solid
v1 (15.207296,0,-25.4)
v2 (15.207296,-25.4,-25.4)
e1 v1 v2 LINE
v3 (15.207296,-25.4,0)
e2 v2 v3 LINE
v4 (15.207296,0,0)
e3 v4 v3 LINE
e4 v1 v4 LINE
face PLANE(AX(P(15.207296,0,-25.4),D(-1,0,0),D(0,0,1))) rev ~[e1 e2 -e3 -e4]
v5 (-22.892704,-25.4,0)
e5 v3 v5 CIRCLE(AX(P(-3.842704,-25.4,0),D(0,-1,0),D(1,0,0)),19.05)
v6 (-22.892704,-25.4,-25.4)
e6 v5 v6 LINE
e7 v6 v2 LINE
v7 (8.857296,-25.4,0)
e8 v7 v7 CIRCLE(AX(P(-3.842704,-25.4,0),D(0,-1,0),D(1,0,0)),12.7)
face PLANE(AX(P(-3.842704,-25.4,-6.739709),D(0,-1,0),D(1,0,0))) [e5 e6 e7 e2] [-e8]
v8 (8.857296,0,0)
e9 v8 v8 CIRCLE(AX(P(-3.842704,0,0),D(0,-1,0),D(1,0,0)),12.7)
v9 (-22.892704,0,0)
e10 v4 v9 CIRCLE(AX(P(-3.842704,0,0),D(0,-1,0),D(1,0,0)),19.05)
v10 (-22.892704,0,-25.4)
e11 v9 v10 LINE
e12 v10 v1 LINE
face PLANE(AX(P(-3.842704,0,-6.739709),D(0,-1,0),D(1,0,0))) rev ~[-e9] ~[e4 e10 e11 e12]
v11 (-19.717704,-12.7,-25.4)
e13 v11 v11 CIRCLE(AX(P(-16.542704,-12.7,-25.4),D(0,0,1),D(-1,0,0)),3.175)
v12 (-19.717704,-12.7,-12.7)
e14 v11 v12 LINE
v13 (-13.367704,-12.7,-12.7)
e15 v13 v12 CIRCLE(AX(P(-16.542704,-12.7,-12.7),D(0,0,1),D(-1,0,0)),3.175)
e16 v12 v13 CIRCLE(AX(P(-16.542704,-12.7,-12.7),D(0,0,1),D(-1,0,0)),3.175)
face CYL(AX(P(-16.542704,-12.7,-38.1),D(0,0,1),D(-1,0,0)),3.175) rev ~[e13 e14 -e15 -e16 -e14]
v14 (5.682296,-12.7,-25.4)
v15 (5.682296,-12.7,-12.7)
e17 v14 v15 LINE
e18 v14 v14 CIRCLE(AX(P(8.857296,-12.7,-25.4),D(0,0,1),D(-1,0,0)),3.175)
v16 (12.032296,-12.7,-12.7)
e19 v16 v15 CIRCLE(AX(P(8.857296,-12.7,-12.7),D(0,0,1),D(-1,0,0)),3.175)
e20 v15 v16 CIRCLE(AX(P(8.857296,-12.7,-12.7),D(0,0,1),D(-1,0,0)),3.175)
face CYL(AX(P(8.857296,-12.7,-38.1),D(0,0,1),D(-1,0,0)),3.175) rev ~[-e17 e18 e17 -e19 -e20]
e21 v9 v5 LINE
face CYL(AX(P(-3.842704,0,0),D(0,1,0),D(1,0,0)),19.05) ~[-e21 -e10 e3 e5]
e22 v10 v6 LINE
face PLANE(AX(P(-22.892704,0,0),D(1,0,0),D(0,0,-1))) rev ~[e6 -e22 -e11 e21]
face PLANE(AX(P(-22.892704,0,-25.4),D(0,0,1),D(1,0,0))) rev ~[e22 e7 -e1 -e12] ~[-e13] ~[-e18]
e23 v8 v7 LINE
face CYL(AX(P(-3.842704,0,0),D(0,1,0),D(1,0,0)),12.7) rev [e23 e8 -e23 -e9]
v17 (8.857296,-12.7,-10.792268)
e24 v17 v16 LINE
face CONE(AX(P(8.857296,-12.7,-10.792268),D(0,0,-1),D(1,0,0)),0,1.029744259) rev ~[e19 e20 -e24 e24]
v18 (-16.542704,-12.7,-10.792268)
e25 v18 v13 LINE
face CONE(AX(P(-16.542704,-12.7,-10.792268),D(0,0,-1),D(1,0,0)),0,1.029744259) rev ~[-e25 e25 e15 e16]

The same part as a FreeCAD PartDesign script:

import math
import FreeCAD as App
import Part
import Sketcher
from FreeCAD import Vector
Q = App.Units.Quantity

doc = App.newDocument("Part")
params = doc.addObject("Spreadsheet::Sheet", "Params")
for row, (alias, value) in enumerate([
    ("sketch1_diameter", "1 in"),
    ("sketch1_height", "1 in"),
    ("sketch1_radius", "0.75 in"),
    ("pad1_length", "1 in"),
    ("sketch2_diameter", "0.25 in"),
    ("hole_diameter", "0.25 in"),
    ("hole_depth", "0.5 in"),
], start=1):
    params.set(f"A{row}", alias)
    params.set(f"B{row}", "=" + value)
    params.setAlias(f"B{row}", alias)

body = doc.addObject("PartDesign::Body", "Body")

# Sketch on XZ plane
sketch1 = body.newObject("Sketcher::SketchObject", "Sketch")
sketch1.AttachmentSupport = (doc.getObject("XZ_Plane"), [""])
sketch1.MapMode = "FlatFace"
sketch1.addGeometry([
    Part.ArcOfCircle(Part.Circle(Vector(-4, 0, 0), Vector(0, 0, 1), 19), math.radians(0), math.radians(180)),  # 0
    Part.LineSegment(Vector(-23, 0, 0), Vector(-23, -25, 0)),  # 1
    Part.LineSegment(Vector(-23, -25, 0), Vector(15, -25, 0)),  # 2
    Part.LineSegment(Vector(15, -25, 0), Vector(15, 0, 0)),  # 3
    Part.Circle(Vector(-4, 0, 0), Vector(0, 0, 1), 13),  # 4
], False)
sketch1.addConstraint([
    Sketcher.Constraint("Tangent", 0, 2, 1, 1),
    Sketcher.Constraint("Coincident", 1, 2, 2, 1),
    Sketcher.Constraint("Coincident", 2, 2, 3, 1),
    Sketcher.Constraint("Tangent", 3, 2, 0, 1),
    Sketcher.Constraint("Vertical", 1),
    Sketcher.Constraint("Horizontal", 2),
    Sketcher.Constraint("Vertical", 3),
    Sketcher.Constraint("Coincident", 4, 3, 0, 3),
    Sketcher.Constraint("PointOnObject", 0, 3, -1),
    Sketcher.Constraint("Diameter", 4, Q("1 in")),
    Sketcher.Constraint("DistanceY", 1, 2, 1, 1, Q("1 in")),
    Sketcher.Constraint("Radius", 0, Q("0.75 in")),
    Sketcher.Constraint("DistanceX", 0, 3, -1, 1, 3.842704),
])
sketch1.setExpression("Constraints[9]", "Params.sketch1_diameter")
sketch1.setExpression("Constraints[10]", "Params.sketch1_height")
sketch1.setExpression("Constraints[11]", "Params.sketch1_radius")
pad1 = body.newObject("PartDesign::Pad", "Pad")
pad1.Profile = sketch1
pad1.setExpression("Length", "Params.pad1_length")

# Sketch on XY plane
sketch2 = body.newObject("Sketcher::SketchObject", "Sketch001")
sketch2.AttachmentSupport = (doc.getObject("XY_Plane"), [""])
sketch2.MapMode = "FlatFace"
sketch2.AttachmentOffset = App.Placement(Vector(0, 0, -1 * 25.4), App.Rotation())
sketch2.addGeometry([
    Part.Circle(Vector(-16.5, -12.7, 0), Vector(0, 0, 1), 3.2),
    Part.Circle(Vector(8.9, -12.7, 0), Vector(0, 0, 1), 3.2),
], False)
sketch2.addConstraint([
    Sketcher.Constraint("Equal", 0, 1),
    Sketcher.Constraint("Horizontal", 0, 3, 1, 3),
    Sketcher.Constraint("Diameter", 0, Q("0.25 in")),
    Sketcher.Constraint("DistanceX", 0, 3, 1, 3, Q("1 in")),
    Sketcher.Constraint("DistanceY", 0, 3, -1, 1, Q("0.5 in")),
    Sketcher.Constraint("DistanceX", 0, 3, -1, 1, 16.542704),
])
sketch2.setExpression("Constraints[2]", "Params.sketch2_diameter")
doc.recompute()
hole = body.newObject("PartDesign::Hole", "Hole")
hole.Profile = sketch2
hole.ThreadType = "None"
hole.setExpression("Diameter", "Params.hole_diameter")
hole.DepthType = "Dimension"
hole.setExpression("Depth", "Params.hole_depth")
hole.DrillPoint = "Angled"
hole.DrillPointAngle = 118
hole.Reversed = True

doc.recompute()
